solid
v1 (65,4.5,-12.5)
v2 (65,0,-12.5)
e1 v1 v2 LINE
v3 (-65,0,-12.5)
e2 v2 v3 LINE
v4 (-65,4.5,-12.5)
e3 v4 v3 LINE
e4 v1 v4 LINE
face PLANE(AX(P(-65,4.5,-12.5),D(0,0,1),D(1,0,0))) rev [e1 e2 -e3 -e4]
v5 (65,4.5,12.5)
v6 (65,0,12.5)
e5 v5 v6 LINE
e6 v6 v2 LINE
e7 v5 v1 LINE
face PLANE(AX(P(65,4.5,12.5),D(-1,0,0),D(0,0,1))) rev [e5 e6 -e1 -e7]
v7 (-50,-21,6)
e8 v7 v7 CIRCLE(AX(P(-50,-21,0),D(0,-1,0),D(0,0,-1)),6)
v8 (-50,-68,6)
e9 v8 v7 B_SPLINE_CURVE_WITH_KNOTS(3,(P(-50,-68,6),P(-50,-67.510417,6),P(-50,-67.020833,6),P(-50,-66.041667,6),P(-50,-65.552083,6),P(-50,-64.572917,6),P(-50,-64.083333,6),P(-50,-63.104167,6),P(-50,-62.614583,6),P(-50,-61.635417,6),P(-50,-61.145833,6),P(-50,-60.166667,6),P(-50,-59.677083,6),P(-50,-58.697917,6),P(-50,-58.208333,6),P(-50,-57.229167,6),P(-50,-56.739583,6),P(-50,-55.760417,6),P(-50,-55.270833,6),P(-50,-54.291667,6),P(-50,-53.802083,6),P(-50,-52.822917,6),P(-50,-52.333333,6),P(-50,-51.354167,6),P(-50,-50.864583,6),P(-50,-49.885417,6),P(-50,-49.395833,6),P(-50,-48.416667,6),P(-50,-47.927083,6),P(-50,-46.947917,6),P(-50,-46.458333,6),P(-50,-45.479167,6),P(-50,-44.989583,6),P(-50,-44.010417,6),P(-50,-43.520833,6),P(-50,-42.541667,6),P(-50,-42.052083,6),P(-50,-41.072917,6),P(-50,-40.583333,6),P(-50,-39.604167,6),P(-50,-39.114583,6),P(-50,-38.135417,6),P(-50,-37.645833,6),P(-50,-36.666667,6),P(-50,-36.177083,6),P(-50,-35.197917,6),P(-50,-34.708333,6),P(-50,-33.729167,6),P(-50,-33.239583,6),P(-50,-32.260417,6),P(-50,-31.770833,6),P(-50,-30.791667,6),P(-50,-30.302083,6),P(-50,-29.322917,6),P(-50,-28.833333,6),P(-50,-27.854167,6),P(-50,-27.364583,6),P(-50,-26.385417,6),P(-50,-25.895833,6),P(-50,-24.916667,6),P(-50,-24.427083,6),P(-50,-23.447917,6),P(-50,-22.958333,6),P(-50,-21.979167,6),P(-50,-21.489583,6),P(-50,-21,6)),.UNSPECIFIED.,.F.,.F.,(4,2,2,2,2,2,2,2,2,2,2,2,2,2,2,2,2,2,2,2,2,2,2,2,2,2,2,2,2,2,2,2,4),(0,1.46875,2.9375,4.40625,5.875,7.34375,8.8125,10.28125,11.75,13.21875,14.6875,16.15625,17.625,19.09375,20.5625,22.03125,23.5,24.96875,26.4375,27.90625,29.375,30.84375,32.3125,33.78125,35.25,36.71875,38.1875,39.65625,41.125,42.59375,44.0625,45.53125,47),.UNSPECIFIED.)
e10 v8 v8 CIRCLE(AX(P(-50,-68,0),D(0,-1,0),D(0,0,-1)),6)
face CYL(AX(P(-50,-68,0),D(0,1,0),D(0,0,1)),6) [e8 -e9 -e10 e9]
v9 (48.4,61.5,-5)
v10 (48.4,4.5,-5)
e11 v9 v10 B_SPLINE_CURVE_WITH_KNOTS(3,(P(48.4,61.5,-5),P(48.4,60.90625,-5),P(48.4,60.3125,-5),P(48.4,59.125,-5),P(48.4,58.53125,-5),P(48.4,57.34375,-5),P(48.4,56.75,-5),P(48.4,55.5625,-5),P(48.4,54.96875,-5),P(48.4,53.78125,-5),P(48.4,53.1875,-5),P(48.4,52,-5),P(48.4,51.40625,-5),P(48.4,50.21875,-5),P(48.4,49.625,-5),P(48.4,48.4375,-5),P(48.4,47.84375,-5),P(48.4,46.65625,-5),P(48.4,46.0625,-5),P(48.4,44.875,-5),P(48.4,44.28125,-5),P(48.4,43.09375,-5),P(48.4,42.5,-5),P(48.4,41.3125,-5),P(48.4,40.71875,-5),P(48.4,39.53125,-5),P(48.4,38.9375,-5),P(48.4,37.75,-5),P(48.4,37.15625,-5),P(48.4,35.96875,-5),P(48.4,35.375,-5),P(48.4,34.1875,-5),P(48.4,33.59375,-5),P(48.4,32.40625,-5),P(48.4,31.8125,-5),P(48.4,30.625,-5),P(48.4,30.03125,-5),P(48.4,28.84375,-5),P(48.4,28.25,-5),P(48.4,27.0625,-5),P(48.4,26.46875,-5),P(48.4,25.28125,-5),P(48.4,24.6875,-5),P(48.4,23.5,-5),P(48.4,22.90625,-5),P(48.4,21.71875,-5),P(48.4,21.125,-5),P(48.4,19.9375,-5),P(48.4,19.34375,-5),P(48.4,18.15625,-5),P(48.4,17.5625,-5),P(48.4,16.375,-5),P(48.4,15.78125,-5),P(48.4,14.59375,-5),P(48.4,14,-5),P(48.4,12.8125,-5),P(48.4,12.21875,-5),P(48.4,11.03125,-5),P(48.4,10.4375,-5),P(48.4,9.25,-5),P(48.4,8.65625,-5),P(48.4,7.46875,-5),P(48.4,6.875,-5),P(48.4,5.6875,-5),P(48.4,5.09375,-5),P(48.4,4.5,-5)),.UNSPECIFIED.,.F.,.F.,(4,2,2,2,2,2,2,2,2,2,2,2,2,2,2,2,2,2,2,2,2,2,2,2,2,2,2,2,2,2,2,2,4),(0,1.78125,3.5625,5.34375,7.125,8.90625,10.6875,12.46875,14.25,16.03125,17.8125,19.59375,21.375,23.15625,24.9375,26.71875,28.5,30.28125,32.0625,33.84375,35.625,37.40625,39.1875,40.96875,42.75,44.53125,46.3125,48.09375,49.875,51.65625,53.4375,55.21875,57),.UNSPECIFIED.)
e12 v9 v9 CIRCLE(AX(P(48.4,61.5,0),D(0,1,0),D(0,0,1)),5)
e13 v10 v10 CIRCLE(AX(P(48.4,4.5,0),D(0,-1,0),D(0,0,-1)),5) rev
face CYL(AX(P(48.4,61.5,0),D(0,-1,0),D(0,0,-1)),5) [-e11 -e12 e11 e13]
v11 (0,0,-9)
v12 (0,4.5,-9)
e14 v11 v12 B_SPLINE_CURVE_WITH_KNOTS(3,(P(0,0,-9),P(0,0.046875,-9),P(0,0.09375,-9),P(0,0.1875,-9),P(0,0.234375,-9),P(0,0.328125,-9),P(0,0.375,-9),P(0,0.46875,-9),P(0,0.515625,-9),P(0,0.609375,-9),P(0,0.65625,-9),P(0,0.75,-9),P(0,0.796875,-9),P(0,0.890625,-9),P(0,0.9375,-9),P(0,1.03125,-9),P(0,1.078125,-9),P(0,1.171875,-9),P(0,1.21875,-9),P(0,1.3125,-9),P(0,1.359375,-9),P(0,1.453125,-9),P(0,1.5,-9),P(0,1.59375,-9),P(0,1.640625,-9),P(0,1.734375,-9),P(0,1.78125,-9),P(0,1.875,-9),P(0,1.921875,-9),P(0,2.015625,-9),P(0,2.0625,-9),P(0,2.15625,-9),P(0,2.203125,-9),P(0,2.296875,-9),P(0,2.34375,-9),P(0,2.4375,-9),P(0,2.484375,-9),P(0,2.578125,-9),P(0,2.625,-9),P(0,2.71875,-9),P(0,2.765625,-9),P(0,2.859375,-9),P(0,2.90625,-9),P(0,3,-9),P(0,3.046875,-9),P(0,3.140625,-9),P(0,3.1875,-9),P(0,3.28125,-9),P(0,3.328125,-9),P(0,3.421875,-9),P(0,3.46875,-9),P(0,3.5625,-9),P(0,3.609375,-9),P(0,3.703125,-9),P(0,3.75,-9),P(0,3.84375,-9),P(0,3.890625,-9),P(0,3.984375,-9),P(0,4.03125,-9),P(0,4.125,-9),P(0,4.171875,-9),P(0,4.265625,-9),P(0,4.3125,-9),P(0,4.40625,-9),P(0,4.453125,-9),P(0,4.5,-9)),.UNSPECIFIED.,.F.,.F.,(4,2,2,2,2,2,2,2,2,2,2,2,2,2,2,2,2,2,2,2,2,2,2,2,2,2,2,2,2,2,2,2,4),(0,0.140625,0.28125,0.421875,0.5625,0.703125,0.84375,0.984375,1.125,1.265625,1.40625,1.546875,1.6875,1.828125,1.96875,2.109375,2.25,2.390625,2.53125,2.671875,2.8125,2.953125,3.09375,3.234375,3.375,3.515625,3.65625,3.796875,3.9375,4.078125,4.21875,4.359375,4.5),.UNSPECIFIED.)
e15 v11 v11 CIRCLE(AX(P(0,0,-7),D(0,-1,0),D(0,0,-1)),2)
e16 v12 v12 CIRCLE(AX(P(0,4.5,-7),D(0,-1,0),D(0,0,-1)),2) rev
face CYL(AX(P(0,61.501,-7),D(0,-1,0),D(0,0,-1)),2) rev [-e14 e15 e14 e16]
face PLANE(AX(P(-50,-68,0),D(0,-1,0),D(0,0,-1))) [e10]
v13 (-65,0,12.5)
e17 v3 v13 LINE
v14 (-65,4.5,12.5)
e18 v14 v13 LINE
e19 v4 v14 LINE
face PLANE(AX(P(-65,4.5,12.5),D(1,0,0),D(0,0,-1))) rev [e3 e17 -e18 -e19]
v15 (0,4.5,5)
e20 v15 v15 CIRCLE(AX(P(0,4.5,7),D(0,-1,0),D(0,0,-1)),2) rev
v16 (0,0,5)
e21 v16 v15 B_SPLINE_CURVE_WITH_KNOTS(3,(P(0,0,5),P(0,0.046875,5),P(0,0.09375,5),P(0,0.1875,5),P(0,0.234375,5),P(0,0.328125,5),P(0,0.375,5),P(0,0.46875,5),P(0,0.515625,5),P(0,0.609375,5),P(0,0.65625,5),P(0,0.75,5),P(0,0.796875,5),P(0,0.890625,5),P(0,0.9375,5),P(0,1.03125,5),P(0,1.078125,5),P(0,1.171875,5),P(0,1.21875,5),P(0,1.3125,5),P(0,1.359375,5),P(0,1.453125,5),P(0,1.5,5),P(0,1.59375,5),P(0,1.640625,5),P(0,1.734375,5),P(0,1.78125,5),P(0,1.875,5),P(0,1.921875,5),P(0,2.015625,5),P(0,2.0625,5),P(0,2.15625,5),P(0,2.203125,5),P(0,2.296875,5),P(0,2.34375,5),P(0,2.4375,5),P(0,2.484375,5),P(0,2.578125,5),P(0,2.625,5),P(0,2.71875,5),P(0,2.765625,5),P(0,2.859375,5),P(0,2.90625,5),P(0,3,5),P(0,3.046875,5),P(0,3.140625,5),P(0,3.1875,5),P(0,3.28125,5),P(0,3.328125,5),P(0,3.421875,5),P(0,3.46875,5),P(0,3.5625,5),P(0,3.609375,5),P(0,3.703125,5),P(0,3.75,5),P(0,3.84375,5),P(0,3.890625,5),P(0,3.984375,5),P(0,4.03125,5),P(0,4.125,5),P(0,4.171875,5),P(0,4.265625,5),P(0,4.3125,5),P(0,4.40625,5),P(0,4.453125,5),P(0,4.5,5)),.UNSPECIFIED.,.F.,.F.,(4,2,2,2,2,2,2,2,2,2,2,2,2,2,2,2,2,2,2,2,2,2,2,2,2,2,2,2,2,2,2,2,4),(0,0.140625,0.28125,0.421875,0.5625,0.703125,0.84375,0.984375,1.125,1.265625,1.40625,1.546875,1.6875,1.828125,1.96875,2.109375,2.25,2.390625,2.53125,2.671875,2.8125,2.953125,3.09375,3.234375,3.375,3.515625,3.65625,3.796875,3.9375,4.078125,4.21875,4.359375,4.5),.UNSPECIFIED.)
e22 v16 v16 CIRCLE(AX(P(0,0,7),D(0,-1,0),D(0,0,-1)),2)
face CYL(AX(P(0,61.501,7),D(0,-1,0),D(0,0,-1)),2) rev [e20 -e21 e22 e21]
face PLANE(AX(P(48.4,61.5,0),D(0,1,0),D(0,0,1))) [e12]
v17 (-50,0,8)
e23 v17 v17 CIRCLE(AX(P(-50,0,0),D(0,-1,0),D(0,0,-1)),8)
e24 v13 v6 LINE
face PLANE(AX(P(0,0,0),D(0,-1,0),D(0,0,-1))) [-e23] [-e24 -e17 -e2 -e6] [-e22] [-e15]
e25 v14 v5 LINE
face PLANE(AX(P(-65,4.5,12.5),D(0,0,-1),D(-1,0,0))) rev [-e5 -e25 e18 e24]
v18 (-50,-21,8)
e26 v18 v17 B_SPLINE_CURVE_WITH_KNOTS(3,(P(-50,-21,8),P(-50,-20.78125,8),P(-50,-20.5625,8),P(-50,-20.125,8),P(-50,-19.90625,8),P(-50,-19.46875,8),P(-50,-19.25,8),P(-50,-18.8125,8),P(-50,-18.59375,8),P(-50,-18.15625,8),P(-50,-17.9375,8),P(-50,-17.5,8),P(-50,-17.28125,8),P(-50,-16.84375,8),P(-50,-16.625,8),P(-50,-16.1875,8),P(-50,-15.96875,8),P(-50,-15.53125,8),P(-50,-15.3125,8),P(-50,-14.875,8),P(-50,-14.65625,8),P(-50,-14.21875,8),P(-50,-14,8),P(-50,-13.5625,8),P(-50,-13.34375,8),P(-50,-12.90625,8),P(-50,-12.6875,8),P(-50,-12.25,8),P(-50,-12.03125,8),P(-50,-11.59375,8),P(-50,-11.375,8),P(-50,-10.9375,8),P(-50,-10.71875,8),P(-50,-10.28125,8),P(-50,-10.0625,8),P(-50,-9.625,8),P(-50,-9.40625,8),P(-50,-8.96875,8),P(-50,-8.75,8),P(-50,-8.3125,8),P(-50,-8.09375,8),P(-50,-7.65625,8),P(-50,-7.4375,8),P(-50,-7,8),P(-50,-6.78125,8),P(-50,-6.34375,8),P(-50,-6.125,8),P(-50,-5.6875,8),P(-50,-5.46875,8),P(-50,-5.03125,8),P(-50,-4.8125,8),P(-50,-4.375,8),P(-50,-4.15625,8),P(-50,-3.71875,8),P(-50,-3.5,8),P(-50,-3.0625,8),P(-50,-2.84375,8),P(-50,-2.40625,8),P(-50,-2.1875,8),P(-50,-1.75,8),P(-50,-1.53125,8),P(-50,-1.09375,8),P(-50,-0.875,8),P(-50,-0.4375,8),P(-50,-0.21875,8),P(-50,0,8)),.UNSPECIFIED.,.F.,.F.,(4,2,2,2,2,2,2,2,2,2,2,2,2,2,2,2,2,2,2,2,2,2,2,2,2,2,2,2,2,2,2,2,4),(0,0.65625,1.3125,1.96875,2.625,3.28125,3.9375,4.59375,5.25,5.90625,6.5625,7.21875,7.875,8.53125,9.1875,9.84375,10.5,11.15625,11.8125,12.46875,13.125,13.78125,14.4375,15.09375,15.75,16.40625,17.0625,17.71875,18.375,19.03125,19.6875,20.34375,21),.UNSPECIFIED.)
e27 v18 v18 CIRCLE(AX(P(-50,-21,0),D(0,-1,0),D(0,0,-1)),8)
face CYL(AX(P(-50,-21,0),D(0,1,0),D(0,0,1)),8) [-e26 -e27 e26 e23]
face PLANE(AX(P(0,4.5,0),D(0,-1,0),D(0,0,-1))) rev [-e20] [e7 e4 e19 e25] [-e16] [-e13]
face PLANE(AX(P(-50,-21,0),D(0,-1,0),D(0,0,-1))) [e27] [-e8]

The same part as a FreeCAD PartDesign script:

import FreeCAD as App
import Part
import Sketcher
from FreeCAD import Vector


def add_polygon(sketch, points):
    """Adds a closed chain of lines whose ends are joined by coincident constraints."""
    first, n = sketch.GeometryCount, len(points)
    for a, b in zip(points, points[1:] + points[:1]):
        sketch.addGeometry(Part.LineSegment(App.Vector(*a, 0), App.Vector(*b, 0)), False)
    for i in range(n):
        sketch.addConstraint(Sketcher.Constraint("Coincident", first + i, 2, first + (i + 1) % n, 1))

doc = App.newDocument("Part")
body = doc.addObject("PartDesign::Body", "Body")

# Sketch on XZ plane
sketch1 = body.newObject("Sketcher::SketchObject", "Sketch")
sketch1.AttachmentSupport = (doc.getObject("XZ_Plane"), [""])
sketch1.MapMode = "FlatFace"
add_polygon(sketch1, [(-65, -12), (-65, 12), (65, 12), (65, -12)])  # lines 0-3
sketch1.addConstraint([
    Sketcher.Constraint("Vertical", 0),
    Sketcher.Constraint("Horizontal", 1),
    Sketcher.Constraint("Vertical", 2),
    Sketcher.Constraint("Horizontal", 3),
    Sketcher.Constraint("Symmetric", 0, 2, 2, 2, -1, 1),
    Sketcher.Constraint("DistanceX", 1, 1, 1, 2, 130.0),
    Sketcher.Constraint("DistanceY", 0, 1, 0, 2, 25.0),
])
pad1 = body.newObject("PartDesign::Pad", "Pad")
pad1.Profile = sketch1
pad1.Length = 4.5
pad1.Reversed = True

# Sketch on XZ plane
sketch2 = body.newObject("Sketcher::SketchObject", "Sketch001")
sketch2.AttachmentSupport = (doc.getObject("XZ_Plane"), [""])
sketch2.MapMode = "FlatFace"
sketch2.AttachmentOffset = App.Placement(Vector(0, 0, -4.5), App.Rotation())
sketch2.addGeometry(Part.Circle(Vector(48, 0, 0), Vector(0, 0, 1), 5), False)
sketch2.addConstraint([
    Sketcher.Constraint("PointOnObject", 0, 3, -1),
    Sketcher.Constraint("Diameter", 0, 10.0),
    Sketcher.Constraint("DistanceX", -1, 1, 0, 3, 48.4),
])
pad2 = body.newObject("PartDesign::Pad", "Pad001")
pad2.Profile = sketch2
pad2.Length = 57
pad2.Reversed = True

# Sketch on XZ plane
sketch3 = body.newObject("Sketcher::SketchObject", "Sketch002")
sketch3.AttachmentSupport = (doc.getObject("XZ_Plane"), [""])
sketch3.MapMode = "FlatFace"
sketch3.addGeometry(Part.Circle(Vector(-50, 0, 0), Vector(0, 0, 1), 8), False)
sketch3.addConstraint([
    Sketcher.Constraint("PointOnObject", 0, 3, -1),
    Sketcher.Constraint("Diameter", 0, 16.0),
    Sketcher.Constraint("DistanceX", 0, 3, -1, 1, 50.0),
])
pad3 = body.newObject("PartDesign::Pad", "Pad002")
pad3.Profile = sketch3
pad3.Length = 21

# Sketch on XZ plane
sketch4 = body.newObject("Sketcher::SketchObject", "Sketch003")
sketch4.AttachmentSupport = (doc.getObject("XZ_Plane"), [""])
sketch4.MapMode = "FlatFace"
sketch4.AttachmentOffset = App.Placement(Vector(0, 0, 21), App.Rotation())
sketch4.addGeometry(Part.Circle(Vector(-50, 0, 0), Vector(0, 0, 1), 6), False)
sketch4.addConstraint([
    Sketcher.Constraint("PointOnObject", 0, 3, -1),
    Sketcher.Constraint("Diameter", 0, 12.0),
    Sketcher.Constraint("DistanceX", 0, 3, -1, 1, 50.0),
])
pad4 = body.newObject("PartDesign::Pad", "Pad003")
pad4.Profile = sketch4
pad4.Length = 47

# Sketch on XZ plane
sketch5 = body.newObject("Sketcher::SketchObject", "Sketch004")
sketch5.AttachmentSupport = (doc.getObject("XZ_Plane"), [""])
sketch5.MapMode = "FlatFace"
sketch5.addGeometry(Part.Circle(Vector(0, 7, 0), Vector(0, 0, 1), 2), False)
sketch5.addConstraint([
    Sketcher.Constraint("PointOnObject", 0, 3, -2),
    Sketcher.Constraint("Diameter", 0, 4.0),
    Sketcher.Constraint("DistanceY", -1, 1, 0, 3, 7.0),
])
pocket1 = body.newObject("PartDesign::Pocket", "Pocket")
pocket1.Profile = sketch5
pocket1.Type = "UpToFirst"

# Sketch on XZ plane
sketch6 = body.newObject("Sketcher::SketchObject", "Sketch005")
sketch6.AttachmentSupport = (doc.getObject("XZ_Plane"), [""])
sketch6.MapMode = "FlatFace"
sketch6.addGeometry(Part.Circle(Vector(0, -7, 0), Vector(0, 0, 1), 2), False)
sketch6.addConstraint([
    Sketcher.Constraint("PointOnObject", 0, 3, -2),
    Sketcher.Constraint("Diameter", 0, 4.0),
    Sketcher.Constraint("DistanceY", 0, 3, -1, 1, 7.0),
])
pocket2 = body.newObject("PartDesign::Pocket", "Pocket001")
pocket2.Profile = sketch6
pocket2.Type = "UpToFirst"

doc.recompute()
